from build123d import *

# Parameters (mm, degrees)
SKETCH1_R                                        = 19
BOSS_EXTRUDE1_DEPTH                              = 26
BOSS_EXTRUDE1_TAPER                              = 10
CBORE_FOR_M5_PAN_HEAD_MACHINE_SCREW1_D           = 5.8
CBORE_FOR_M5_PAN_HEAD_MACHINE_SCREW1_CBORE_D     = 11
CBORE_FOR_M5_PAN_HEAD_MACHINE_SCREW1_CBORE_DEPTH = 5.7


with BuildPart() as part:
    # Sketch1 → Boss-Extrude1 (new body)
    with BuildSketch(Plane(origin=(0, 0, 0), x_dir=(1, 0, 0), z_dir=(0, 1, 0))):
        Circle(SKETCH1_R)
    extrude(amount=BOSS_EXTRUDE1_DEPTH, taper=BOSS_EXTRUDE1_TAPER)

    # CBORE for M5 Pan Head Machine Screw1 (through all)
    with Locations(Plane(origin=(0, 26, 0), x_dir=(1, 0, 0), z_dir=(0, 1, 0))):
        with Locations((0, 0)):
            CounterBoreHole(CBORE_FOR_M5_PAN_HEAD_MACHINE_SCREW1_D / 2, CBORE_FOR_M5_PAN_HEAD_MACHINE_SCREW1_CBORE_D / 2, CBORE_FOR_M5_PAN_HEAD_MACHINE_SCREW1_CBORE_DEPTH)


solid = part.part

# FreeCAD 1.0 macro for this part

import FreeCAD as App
import Part
import Sketcher

V = App.Vector

doc = App.newDocument("Part")
params = doc.addObject("Spreadsheet::Sheet", "Params")
for row, (alias, value) in enumerate([
    ("sketch1_diameter", "38 mm"),
    ("pad1_length", "26 mm"),
    ("pad1_taper", "-10 deg"),
    ("sketch2_diameter", "5.8 mm"),
    ("hole_diameter", "5.8 mm"),
    ("hole_cbore_diameter", "11 mm"),
    ("hole_cbore_depth", "5.7 mm"),
], start=1):
    params.set(f"A{row}", alias)
    params.set(f"B{row}", "=" + value)
    params.setAlias(f"B{row}", alias)

body = doc.addObject("PartDesign::Body", "Body")

# Sketch on XZ plane
sketch1 = body.newObject("Sketcher::SketchObject", "Sketch")
sketch1.AttachmentSupport = (doc.getObject("XZ_Plane"), [""])
sketch1.MapMode = "FlatFace"
sketch1.addGeometry(Part.Circle(V(0, 0, 0), V(0, 0, 1), 19), False)
sketch1.addConstraint([
    Sketcher.Constraint("Coincident", 0, 3, -1, 1),
    Sketcher.Constraint("Diameter", 0, 38.0),
])
sketch1.setExpression("Constraints[1]", "Params.sketch1_diameter")
pad1 = body.newObject("PartDesign::Pad", "Pad")
pad1.Profile = sketch1
pad1.setExpression("Length", "Params.pad1_length")
pad1.Reversed = True
pad1.setExpression("TaperAngle", "Params.pad1_taper")

# Sketch on XZ plane
sketch2 = body.newObject("Sketcher::SketchObject", "Sketch001")
sketch2.AttachmentSupport = (doc.getObject("XZ_Plane"), [""])
sketch2.MapMode = "FlatFace"
sketch2.AttachmentOffset = App.Placement(V(0, 0, -26), App.Rotation())
sketch2.addGeometry(Part.Circle(V(0, 0, 0), V(0, 0, 1), 2.9), False)
sketch2.addConstraint([
    Sketcher.Constraint("Coincident", 0, 3, -1, 1),
    Sketcher.Constraint("Diameter", 0, 5.8),
])
sketch2.setExpression("Constraints[1]", "Params.sketch2_diameter")
doc.recompute()
hole = body.newObject("PartDesign::Hole", "Hole")
hole.Profile = sketch2
hole.ThreadType = "None"
hole.setExpression("Diameter", "Params.hole_diameter")
hole.DepthType = "ThroughAll"
hole.HoleCutType = "Counterbore"
hole.setExpression("HoleCutDiameter", "Params.hole_cbore_diameter")
hole.setExpression("HoleCutDepth", "Params.hole_cbore_depth")
hole.Reversed = True

doc.recompute()
